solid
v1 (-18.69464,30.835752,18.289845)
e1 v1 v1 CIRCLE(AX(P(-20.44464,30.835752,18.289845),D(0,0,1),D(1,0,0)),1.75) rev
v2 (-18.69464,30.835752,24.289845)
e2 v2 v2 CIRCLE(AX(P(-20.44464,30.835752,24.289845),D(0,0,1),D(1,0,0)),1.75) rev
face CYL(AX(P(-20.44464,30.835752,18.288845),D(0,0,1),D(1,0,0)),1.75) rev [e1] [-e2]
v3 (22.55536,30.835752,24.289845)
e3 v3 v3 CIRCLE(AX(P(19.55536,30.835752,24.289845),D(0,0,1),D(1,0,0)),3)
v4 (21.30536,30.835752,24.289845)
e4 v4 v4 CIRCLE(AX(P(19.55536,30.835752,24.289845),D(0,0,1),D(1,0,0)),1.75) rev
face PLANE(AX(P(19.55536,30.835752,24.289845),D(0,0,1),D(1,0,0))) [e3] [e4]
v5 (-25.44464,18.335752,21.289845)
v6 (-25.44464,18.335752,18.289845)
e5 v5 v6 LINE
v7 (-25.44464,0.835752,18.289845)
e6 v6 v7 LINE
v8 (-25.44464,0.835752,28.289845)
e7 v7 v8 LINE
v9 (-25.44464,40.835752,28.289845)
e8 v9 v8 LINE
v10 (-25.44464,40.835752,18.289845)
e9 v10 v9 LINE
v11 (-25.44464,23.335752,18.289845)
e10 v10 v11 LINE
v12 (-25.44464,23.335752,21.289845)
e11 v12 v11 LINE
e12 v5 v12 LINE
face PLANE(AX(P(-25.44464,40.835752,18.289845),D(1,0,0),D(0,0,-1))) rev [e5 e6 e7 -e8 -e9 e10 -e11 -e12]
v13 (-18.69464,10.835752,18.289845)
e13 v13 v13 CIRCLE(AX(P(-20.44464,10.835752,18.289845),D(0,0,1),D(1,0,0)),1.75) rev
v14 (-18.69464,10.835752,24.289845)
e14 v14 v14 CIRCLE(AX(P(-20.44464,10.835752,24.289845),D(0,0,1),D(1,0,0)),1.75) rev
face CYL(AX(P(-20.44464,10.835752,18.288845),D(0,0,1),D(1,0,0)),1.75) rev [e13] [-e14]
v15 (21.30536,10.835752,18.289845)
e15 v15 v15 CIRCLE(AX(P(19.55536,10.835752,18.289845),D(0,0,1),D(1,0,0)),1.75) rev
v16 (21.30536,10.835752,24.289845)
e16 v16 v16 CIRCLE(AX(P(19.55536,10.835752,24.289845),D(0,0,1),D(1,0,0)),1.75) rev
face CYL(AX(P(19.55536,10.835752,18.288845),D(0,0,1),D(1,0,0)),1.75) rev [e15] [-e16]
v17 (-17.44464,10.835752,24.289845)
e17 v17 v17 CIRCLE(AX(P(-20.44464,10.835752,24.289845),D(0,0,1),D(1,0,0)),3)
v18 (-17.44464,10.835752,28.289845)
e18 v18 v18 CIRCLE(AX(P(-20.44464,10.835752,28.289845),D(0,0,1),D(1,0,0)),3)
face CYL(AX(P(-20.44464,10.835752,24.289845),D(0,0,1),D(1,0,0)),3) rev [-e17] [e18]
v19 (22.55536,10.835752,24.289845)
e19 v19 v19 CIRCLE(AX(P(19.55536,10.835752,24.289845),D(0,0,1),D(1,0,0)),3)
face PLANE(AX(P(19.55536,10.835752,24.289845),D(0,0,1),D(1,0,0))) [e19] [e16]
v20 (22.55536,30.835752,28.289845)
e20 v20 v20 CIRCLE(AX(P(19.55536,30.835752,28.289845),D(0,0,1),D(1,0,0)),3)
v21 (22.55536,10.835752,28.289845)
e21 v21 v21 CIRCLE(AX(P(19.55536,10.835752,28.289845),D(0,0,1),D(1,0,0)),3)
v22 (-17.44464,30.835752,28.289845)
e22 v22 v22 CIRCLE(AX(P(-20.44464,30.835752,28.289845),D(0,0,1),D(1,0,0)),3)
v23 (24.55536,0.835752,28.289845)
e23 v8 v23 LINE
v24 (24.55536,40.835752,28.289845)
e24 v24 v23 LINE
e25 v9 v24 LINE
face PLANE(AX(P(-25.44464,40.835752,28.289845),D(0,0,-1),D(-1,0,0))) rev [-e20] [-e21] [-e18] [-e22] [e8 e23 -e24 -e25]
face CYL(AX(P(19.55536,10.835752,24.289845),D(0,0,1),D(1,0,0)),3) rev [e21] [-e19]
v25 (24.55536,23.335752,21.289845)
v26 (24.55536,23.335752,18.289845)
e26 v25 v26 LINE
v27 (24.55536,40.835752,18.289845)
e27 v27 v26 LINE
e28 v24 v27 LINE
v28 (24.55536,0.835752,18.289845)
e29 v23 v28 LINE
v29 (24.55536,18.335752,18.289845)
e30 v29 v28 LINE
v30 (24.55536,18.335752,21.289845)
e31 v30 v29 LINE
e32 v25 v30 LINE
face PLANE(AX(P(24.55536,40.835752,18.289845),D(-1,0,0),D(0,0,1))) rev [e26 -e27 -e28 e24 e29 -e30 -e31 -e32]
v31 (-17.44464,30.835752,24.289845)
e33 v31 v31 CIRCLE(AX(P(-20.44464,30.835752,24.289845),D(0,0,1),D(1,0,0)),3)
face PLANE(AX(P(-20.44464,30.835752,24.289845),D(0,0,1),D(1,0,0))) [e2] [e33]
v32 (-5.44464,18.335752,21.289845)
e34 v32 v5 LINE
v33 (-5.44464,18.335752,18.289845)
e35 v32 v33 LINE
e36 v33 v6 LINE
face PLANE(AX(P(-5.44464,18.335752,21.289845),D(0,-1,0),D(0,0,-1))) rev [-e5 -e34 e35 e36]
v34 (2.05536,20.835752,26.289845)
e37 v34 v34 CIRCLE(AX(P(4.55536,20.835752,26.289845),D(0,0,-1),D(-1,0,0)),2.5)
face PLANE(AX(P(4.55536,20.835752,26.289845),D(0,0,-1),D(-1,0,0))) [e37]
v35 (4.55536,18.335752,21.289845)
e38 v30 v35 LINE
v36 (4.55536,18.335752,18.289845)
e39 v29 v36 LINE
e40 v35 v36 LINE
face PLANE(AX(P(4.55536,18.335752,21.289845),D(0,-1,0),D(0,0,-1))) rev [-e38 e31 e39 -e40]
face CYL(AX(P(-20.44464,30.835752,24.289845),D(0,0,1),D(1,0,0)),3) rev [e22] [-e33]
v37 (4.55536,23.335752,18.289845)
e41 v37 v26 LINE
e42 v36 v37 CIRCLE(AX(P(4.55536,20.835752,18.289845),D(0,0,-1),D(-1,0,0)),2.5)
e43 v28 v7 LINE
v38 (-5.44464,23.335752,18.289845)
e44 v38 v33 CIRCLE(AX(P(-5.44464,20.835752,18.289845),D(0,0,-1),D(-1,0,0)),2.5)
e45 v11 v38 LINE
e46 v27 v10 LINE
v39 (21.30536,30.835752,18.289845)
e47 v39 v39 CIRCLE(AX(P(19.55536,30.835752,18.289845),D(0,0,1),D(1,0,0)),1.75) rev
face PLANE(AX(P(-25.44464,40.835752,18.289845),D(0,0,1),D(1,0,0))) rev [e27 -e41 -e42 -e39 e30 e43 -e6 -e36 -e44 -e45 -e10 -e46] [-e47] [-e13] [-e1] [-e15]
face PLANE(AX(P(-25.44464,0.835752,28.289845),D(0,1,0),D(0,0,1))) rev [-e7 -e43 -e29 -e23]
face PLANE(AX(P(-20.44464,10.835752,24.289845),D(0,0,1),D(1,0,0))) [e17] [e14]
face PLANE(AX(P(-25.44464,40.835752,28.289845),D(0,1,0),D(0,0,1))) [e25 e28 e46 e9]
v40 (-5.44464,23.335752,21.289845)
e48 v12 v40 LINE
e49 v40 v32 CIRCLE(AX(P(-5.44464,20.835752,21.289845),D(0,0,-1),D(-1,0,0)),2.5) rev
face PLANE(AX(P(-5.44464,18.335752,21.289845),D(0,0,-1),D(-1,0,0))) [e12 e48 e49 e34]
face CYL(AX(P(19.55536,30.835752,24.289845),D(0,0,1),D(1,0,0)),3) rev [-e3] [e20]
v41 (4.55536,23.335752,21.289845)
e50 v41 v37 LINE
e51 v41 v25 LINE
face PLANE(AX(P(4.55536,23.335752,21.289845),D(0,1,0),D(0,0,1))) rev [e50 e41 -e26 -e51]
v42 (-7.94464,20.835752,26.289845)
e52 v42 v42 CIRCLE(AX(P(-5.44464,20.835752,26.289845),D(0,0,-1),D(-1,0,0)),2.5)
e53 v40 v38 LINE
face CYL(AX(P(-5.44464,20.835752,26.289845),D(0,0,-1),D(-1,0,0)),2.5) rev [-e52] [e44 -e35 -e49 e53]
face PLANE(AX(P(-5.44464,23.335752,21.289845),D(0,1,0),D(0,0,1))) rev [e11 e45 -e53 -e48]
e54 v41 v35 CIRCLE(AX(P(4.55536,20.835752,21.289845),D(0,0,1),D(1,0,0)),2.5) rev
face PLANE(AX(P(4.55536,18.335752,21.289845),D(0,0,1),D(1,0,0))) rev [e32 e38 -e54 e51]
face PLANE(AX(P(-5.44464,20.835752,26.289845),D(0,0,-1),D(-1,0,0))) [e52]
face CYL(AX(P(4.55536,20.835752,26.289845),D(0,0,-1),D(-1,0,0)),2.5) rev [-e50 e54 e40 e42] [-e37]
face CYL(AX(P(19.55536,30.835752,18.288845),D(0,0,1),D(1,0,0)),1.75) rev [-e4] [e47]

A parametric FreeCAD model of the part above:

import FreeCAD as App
import Part
import Sketcher
from FreeCAD import Vector
Q = App.Units.Quantity

doc = App.newDocument("Part")
body = doc.addObject("PartDesign::Body", "Body")

# Sketch on XZ plane
sketch1 = doc.addObject("Sketcher::SketchObject", "Sketch")
body.addObject(sketch1)
sketch1.AttachmentSupport = (doc.XZ_Plane, [""])
sketch1.MapMode = "FlatFace"
sketch1.AttachmentOffset = App.Placement(Vector(0, 0, -0.835752), App.Rotation())
sketch1.addGeometry([
    Part.LineSegment(Vector(25, 28, 0), Vector(25, 18, 0)),
    Part.LineSegment(Vector(25, 18, 0), Vector(-25, 18, 0)),
    Part.LineSegment(Vector(-25, 18, 0), Vector(-25, 28, 0)),
    Part.LineSegment(Vector(-25, 28, 0), Vector(25, 28, 0)),
], False)
sketch1.addConstraint([
    Sketcher.Constraint("Coincident", 0, 2, 1, 1),
    Sketcher.Constraint("Coincident", 1, 2, 2, 1),
    Sketcher.Constraint("Coincident", 2, 2, 3, 1),
    Sketcher.Constraint("Coincident", 3, 2, 0, 1),
    Sketcher.Constraint("Vertical", 0),
    Sketcher.Constraint("Horizontal", 1),
    Sketcher.Constraint("Vertical", 2),
    Sketcher.Constraint("Horizontal", 3),
    Sketcher.Constraint("DistanceX", 1, 2, 1, 1, Q("50 mm")),
    Sketcher.Constraint("DistanceY", 0, 2, 0, 1, Q("10 mm")),
    Sketcher.Constraint("DistanceX", -1, 1, 0, 2, Q("24.55536 mm")),
    Sketcher.Constraint("DistanceY", -1, 1, 0, 2, Q("18.289845 mm")),
])
pad1 = doc.addObject("PartDesign::Pad", "Pad")
body.addObject(pad1)
pad1.Profile = sketch1
pad1.Length = 40
pad1.Reversed = True

# Sketch on XY plane
sketch2 = doc.addObject("Sketcher::SketchObject", "Sketch001")
body.addObject(sketch2)
sketch2.AttachmentSupport = (doc.XY_Plane, [""])
sketch2.MapMode = "FlatFace"
sketch2.AttachmentOffset = App.Placement(Vector(0, 0, 28.289845), App.Rotation())
sketch2.addGeometry(Part.Circle(Vector(-20.4, 30.8, 0), Vector(0, 0, 1), 1.8), False)
sketch2.addConstraint([
    Sketcher.Constraint("Diameter", 0, Q("3.5 mm")),
    Sketcher.Constraint("DistanceX", 0, 3, -1, 1, Q("20.44464 mm")),
    Sketcher.Constraint("DistanceY", -1, 1, 0, 3, Q("30.835752 mm")),
])
pocket1 = doc.addObject("PartDesign::Pocket", "Pocket")
body.addObject(pocket1)
pocket1.Profile = sketch2
pocket1.Type = "UpToFirst"

# Sketch on XY plane
sketch3 = doc.addObject("Sketcher::SketchObject", "Sketch002")
body.addObject(sketch3)
sketch3.AttachmentSupport = (doc.XY_Plane, [""])
sketch3.MapMode = "FlatFace"
sketch3.AttachmentOffset = App.Placement(Vector(0, 0, 28.289845), App.Rotation())
sketch3.addGeometry(Part.Circle(Vector(-20.4, 10.8, 0), Vector(0, 0, 1), 1.8), False)
sketch3.addConstraint([
    Sketcher.Constraint("Diameter", 0, Q("3.5 mm")),
    Sketcher.Constraint("DistanceX", 0, 3, -1, 1, Q("20.44464 mm")),
    Sketcher.Constraint("DistanceY", -1, 1, 0, 3, Q("10.835752 mm")),
])
pocket2 = doc.addObject("PartDesign::Pocket", "Pocket001")
body.addObject(pocket2)
pocket2.Profile = sketch3
pocket2.Type = "UpToFirst"

# Sketch on XY plane
sketch4 = doc.addObject("Sketcher::SketchObject", "Sketch003")
body.addObject(sketch4)
sketch4.AttachmentSupport = (doc.XY_Plane, [""])
sketch4.MapMode = "FlatFace"
sketch4.AttachmentOffset = App.Placement(Vector(0, 0, 28.289845), App.Rotation())
sketch4.addGeometry(Part.Circle(Vector(19.6, 10.8, 0), Vector(0, 0, 1), 1.8), False)
sketch4.addConstraint([
    Sketcher.Constraint("Diameter", 0, Q("3.5 mm")),
    Sketcher.Constraint("DistanceX", -1, 1, 0, 3, Q("19.55536 mm")),
    Sketcher.Constraint("DistanceY", -1, 1, 0, 3, Q("10.835752 mm")),
])
pocket3 = doc.addObject("PartDesign::Pocket", "Pocket002")
body.addObject(pocket3)
pocket3.Profile = sketch4
pocket3.Type = "UpToFirst"

# Sketch on XY plane
sketch5 = doc.addObject("Sketcher::SketchObject", "Sketch004")
body.addObject(sketch5)
sketch5.AttachmentSupport = (doc.XY_Plane, [""])
sketch5.MapMode = "FlatFace"
sketch5.AttachmentOffset = App.Placement(Vector(0, 0, 28.289845), App.Rotation())
sketch5.addGeometry(Part.Circle(Vector(19.6, 30.8, 0), Vector(0, 0, 1), 1.8), False)
sketch5.addConstraint([
    Sketcher.Constraint("Diameter", 0, Q("3.5 mm")),
    Sketcher.Constraint("DistanceX", -1, 1, 0, 3, Q("19.55536 mm")),
    Sketcher.Constraint("DistanceY", -1, 1, 0, 3, Q("30.835752 mm")),
])
pocket4 = doc.addObject("PartDesign::Pocket", "Pocket003")
body.addObject(pocket4)
pocket4.Profile = sketch5
pocket4.Type = "UpToFirst"

# Sketch on XY plane
sketch6 = doc.addObject("Sketcher::SketchObject", "Sketch005")
body.addObject(sketch6)
sketch6.AttachmentSupport = (doc.XY_Plane, [""])
sketch6.MapMode = "FlatFace"
sketch6.AttachmentOffset = App.Placement(Vector(0, 0, 28.289845), App.Rotation())
sketch6.addGeometry([
    Part.Circle(Vector(-20.4, 30.8, 0), Vector(0, 0, 1), 3),
    Part.Circle(Vector(-20.4, 10.8, 0), Vector(0, 0, 1), 3),
    Part.Circle(Vector(19.6, 10.8, 0), Vector(0, 0, 1), 3),
    Part.Circle(Vector(19.6, 30.8, 0), Vector(0, 0, 1), 3),
], False)
sketch6.addConstraint([
    Sketcher.Constraint("Equal", 0, 1),
    Sketcher.Constraint("Equal", 1, 2),
    Sketcher.Constraint("Equal", 2, 3),
    Sketcher.Constraint("Horizontal", 1, 3, 2, 3),
    Sketcher.Constraint("Horizontal", 0, 3, 3, 3),
    Sketcher.Constraint("Vertical", 0, 3, 1, 3),
    Sketcher.Constraint("Vertical", 2, 3, 3, 3),
    Sketcher.Constraint("Diameter", 0, Q("6 mm")),
    Sketcher.Constraint("DistanceY", 1, 3, 0, 3, Q("20 mm")),
    Sketcher.Constraint("DistanceX", 1, 3, 2, 3, Q("40 mm")),
    Sketcher.Constraint("DistanceX", 0, 3, -1, 1, Q("20.44464 mm")),
    Sketcher.Constraint("DistanceY", -1, 1, 0, 3, Q("30.835752 mm")),
])
pocket5 = doc.addObject("PartDesign::Pocket", "Pocket004")
body.addObject(pocket5)
pocket5.Profile = sketch6
pocket5.Length = 4

# Sketch on XY plane
sketch7 = doc.addObject("Sketcher::SketchObject", "Sketch006")
body.addObject(sketch7)
sketch7.AttachmentSupport = (doc.XY_Plane, [""])
sketch7.MapMode = "FlatFace"
sketch7.AttachmentOffset = App.Placement(Vector(0, 0, 18.289845), App.Rotation())
sketch7.addGeometry([
    Part.Circle(Vector(-5.4, 20.8, 0), Vector(0, 0, 1), 2.5),
    Part.Circle(Vector(4.6, 20.8, 0), Vector(0, 0, 1), 2.5),
], False)
sketch7.addConstraint([
    Sketcher.Constraint("Equal", 0, 1),
    Sketcher.Constraint("Horizontal", 0, 3, 1, 3),
    Sketcher.Constraint("Diameter", 0, Q("5 mm")),
    Sketcher.Constraint("DistanceX", 0, 3, 1, 3, Q("10 mm")),
    Sketcher.Constraint("DistanceX", 0, 3, -1, 1, Q("5.44464 mm")),
    Sketcher.Constraint("DistanceY", -1, 1, 0, 3, Q("20.835752 mm")),
])
pocket6 = doc.addObject("PartDesign::Pocket", "Pocket005")
body.addObject(pocket6)
pocket6.Profile = sketch7
pocket6.Length = 8
pocket6.Reversed = True

# Sketch on XY plane
sketch8 = doc.addObject("Sketcher::SketchObject", "Sketch007")
body.addObject(sketch8)
sketch8.AttachmentSupport = (doc.XY_Plane, [""])
sketch8.MapMode = "FlatFace"
sketch8.AttachmentOffset = App.Placement(Vector(0, 0, 18.289845), App.Rotation())
sketch8.addGeometry([
    Part.LineSegment(Vector(-5, 23, 0), Vector(-5, 18, 0)),  # 0
    Part.LineSegment(Vector(-5, 18, 0), Vector(-25, 18, 0)),  # 1
    Part.LineSegment(Vector(-25, 18, 0), Vector(-25, 23, 0)),  # 2
    Part.LineSegment(Vector(-25, 23, 0), Vector(-5, 23, 0)),  # 3
    Part.LineSegment(Vector(25, 23, 0), Vector(25, 18, 0)),  # 4
    Part.LineSegment(Vector(25, 18, 0), Vector(5, 18, 0)),  # 5
    Part.LineSegment(Vector(5, 18, 0), Vector(5, 23, 0)),  # 6
    Part.LineSegment(Vector(5, 23, 0), Vector(25, 23, 0)),  # 7
], False)
sketch8.addConstraint([
    Sketcher.Constraint("Coincident", 0, 2, 1, 1),
    Sketcher.Constraint("Coincident", 1, 2, 2, 1),
    Sketcher.Constraint("Coincident", 2, 2, 3, 1),
    Sketcher.Constraint("Coincident", 3, 2, 0, 1),
    Sketcher.Constraint("Coincident", 4, 2, 5, 1),
    Sketcher.Constraint("Coincident", 5, 2, 6, 1),
    Sketcher.Constraint("Coincident", 6, 2, 7, 1),
    Sketcher.Constraint("Coincident", 7, 2, 4, 1),
    Sketcher.Constraint("Vertical", 0),
    Sketcher.Constraint("Horizontal", 1),
    Sketcher.Constraint("Vertical", 2),
    Sketcher.Constraint("Horizontal", 3),
    Sketcher.Constraint("Vertical", 4),
    Sketcher.Constraint("Horizontal", 5),
    Sketcher.Constraint("Vertical", 6),
    Sketcher.Constraint("Horizontal", 7),
    Sketcher.Constraint("Horizontal", 1, 2, 4, 2),
    Sketcher.Constraint("Horizontal", 3, 2, 6, 2),
    Sketcher.Constraint("Equal", 3, 5),
    Sketcher.Constraint("DistanceX", 1, 2, 1, 1, Q("20 mm")),
    Sketcher.Constraint("DistanceY", 0, 2, 0, 1, Q("5 mm")),
    Sketcher.Constraint("DistanceX", 0, 2, 4, 2, Q("30 mm")),
    Sketcher.Constraint("DistanceX", 0, 2, -1, 1, Q("5.44464 mm")),
    Sketcher.Constraint("DistanceY", -1, 1, 0, 2, Q("18.335752 mm")),
])
pocket7 = doc.addObject("PartDesign::Pocket", "Pocket006")
body.addObject(pocket7)
pocket7.Profile = sketch8
pocket7.Length = 3
pocket7.Reversed = True

doc.recompute()
